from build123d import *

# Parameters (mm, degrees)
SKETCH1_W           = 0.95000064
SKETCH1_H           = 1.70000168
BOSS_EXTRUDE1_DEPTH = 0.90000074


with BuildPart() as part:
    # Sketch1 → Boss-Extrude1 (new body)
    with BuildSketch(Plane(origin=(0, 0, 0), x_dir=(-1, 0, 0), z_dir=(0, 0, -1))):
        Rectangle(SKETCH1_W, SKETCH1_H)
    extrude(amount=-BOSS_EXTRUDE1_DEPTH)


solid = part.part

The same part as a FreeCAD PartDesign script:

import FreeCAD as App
import Part
import Sketcher

V = App.Vector
Q = App.Units.Quantity


def add_polygon(sketch, points):
    """Adds a closed chain of lines whose ends are joined by coincident constraints."""
    first, n = sketch.GeometryCount, len(points)
    for a, b in zip(points, points[1:] + points[:1]):
        sketch.addGeometry(Part.LineSegment(App.Vector(*a, 0), App.Vector(*b, 0)), False)
    for i in range(n):
        sketch.addConstraint(Sketcher.Constraint("Coincident", first + i, 2, first + (i + 1) % n, 1))

doc = App.newDocument("Part")
body = doc.addObject("PartDesign::Body", "Body")

sketch1 = doc.addObject("Sketcher::SketchObject", "Sketch")
body.addObject(sketch1)
sketch1.AttachmentSupport = (doc.XY_Plane, [""])
sketch1.MapMode = "FlatFace"
add_polygon(sketch1, [(0.5, 0.9), (0.5, -0.9), (-0.5, -0.9), (-0.5, 0.9)])
sketch1.addConstraint([
    Sketcher.Constraint("Vertical", 0),
    Sketcher.Constraint("Horizontal", 1),
    Sketcher.Constraint("Vertical", 2),
    Sketcher.Constraint("Horizontal", 3),
    Sketcher.Constraint("Symmetric", 0, 2, 2, 2, -1, 1),
    Sketcher.Constraint("DistanceY", 0, 2, 0, 1, Q("1.700002 mm")),
    Sketcher.Constraint("DistanceX", 1, 2, 1, 1, Q("0.950001 mm")),
])
pad1 = doc.addObject("PartDesign::Pad", "Pad")
body.addObject(pad1)
pad1.Profile = sketch1
pad1.Length = 0.900001

doc.recompute()
